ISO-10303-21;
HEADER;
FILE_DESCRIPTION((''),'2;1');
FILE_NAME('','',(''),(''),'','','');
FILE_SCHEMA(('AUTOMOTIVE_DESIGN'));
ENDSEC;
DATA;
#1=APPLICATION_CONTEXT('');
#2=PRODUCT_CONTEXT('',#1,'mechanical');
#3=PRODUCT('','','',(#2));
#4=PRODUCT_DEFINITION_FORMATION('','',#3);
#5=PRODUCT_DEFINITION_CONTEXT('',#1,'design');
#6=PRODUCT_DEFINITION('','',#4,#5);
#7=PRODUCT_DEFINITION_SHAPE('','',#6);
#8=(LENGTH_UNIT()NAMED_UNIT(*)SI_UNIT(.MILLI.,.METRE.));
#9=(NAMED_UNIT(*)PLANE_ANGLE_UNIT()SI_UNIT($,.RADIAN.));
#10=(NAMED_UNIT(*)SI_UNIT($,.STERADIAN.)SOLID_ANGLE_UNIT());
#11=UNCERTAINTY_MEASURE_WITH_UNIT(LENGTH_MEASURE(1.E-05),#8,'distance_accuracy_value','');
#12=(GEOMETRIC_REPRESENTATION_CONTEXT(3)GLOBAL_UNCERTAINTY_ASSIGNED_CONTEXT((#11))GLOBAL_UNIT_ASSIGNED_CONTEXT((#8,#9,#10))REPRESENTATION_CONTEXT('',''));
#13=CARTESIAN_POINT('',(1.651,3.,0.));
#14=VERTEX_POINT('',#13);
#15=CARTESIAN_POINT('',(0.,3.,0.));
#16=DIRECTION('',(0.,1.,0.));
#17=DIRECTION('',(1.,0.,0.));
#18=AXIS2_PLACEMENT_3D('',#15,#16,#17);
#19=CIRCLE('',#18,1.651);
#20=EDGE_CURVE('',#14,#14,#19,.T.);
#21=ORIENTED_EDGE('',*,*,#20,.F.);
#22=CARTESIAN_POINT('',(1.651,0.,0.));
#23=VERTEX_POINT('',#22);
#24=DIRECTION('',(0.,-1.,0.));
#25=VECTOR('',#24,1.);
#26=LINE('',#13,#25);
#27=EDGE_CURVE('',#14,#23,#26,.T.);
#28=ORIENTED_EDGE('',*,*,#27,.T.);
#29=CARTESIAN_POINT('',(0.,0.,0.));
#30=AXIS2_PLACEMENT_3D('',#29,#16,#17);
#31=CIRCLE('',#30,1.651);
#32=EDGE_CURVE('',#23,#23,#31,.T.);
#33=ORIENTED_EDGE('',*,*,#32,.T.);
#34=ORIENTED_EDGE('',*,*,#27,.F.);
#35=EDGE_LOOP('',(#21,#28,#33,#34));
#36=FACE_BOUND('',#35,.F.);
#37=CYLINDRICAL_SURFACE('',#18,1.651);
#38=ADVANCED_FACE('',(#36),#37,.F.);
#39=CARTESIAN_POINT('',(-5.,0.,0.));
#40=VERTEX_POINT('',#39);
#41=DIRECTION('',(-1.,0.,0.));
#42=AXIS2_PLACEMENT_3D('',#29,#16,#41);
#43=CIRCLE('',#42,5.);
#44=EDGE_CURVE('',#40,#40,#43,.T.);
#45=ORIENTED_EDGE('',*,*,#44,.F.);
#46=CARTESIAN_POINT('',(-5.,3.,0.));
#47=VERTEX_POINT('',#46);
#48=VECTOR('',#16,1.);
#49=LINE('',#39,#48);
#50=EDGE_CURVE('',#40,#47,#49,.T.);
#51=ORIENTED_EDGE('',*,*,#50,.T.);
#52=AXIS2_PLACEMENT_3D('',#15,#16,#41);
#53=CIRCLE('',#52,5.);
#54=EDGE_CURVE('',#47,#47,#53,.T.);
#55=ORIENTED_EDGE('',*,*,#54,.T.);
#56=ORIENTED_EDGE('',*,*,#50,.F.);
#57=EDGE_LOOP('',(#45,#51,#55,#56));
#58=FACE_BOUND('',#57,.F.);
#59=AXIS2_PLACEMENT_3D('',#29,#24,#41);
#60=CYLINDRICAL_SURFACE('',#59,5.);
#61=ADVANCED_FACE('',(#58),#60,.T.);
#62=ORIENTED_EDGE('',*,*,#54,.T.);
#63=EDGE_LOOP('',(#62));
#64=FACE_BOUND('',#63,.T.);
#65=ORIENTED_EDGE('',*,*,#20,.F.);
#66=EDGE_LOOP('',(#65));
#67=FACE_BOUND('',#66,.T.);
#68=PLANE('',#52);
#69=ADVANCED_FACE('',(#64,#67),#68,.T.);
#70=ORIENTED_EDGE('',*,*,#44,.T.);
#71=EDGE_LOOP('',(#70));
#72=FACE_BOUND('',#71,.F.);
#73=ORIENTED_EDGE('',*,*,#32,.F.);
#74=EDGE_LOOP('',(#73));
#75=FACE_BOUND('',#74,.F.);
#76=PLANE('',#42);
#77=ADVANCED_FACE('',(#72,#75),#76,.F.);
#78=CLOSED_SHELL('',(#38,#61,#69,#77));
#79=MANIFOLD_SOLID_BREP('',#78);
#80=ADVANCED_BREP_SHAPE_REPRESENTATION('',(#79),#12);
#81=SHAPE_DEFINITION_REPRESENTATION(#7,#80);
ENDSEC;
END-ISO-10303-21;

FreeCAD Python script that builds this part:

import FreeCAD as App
import Part
import Sketcher

V = App.Vector
Q = App.Units.Quantity

doc = App.newDocument("Part")
body = doc.addObject("PartDesign::Body", "Body")

sketch1 = body.newObject("Sketcher::SketchObject", "Sketch")
sketch1.AttachmentSupport = (doc.getObject("XZ_Plane"), [""])
sketch1.MapMode = "FlatFace"
sketch1.addGeometry(Part.Circle(V(0, 0, 0), V(0, 0, 1), 5), False)
sketch1.addConstraint([
    Sketcher.Constraint("Coincident", 0, 3, -1, 1),
    Sketcher.Constraint("Diameter", 0, Q("0.3937 in")),
])
pad1 = body.newObject("PartDesign::Pad", "Pad")
pad1.Profile = sketch1
pad1.Length = Q("0.1181102 in")
pad1.Reversed = True

sketch2 = body.newObject("Sketcher::SketchObject", "Sketch001")
sketch2.AttachmentSupport = (doc.getObject("XZ_Plane"), [""])
sketch2.MapMode = "FlatFace"
sketch2.AttachmentOffset = App.Placement(V(0, 0, -0.1181102 * 25.4), App.Rotation())
sketch2.addGeometry(Part.Circle(V(0, 0, 0), V(0, 0, 1), 1.7), False)
sketch2.addConstraint([
    Sketcher.Constraint("Coincident", 0, 3, -1, 1),
    Sketcher.Constraint("Diameter", 0, Q("0.13 in")),
])
pocket1 = body.newObject("PartDesign::Pocket", "Pocket")
pocket1.Profile = sketch2
pocket1.Length = Q("0.1181102 in")
pocket1.Reversed = True

doc.recompute()
